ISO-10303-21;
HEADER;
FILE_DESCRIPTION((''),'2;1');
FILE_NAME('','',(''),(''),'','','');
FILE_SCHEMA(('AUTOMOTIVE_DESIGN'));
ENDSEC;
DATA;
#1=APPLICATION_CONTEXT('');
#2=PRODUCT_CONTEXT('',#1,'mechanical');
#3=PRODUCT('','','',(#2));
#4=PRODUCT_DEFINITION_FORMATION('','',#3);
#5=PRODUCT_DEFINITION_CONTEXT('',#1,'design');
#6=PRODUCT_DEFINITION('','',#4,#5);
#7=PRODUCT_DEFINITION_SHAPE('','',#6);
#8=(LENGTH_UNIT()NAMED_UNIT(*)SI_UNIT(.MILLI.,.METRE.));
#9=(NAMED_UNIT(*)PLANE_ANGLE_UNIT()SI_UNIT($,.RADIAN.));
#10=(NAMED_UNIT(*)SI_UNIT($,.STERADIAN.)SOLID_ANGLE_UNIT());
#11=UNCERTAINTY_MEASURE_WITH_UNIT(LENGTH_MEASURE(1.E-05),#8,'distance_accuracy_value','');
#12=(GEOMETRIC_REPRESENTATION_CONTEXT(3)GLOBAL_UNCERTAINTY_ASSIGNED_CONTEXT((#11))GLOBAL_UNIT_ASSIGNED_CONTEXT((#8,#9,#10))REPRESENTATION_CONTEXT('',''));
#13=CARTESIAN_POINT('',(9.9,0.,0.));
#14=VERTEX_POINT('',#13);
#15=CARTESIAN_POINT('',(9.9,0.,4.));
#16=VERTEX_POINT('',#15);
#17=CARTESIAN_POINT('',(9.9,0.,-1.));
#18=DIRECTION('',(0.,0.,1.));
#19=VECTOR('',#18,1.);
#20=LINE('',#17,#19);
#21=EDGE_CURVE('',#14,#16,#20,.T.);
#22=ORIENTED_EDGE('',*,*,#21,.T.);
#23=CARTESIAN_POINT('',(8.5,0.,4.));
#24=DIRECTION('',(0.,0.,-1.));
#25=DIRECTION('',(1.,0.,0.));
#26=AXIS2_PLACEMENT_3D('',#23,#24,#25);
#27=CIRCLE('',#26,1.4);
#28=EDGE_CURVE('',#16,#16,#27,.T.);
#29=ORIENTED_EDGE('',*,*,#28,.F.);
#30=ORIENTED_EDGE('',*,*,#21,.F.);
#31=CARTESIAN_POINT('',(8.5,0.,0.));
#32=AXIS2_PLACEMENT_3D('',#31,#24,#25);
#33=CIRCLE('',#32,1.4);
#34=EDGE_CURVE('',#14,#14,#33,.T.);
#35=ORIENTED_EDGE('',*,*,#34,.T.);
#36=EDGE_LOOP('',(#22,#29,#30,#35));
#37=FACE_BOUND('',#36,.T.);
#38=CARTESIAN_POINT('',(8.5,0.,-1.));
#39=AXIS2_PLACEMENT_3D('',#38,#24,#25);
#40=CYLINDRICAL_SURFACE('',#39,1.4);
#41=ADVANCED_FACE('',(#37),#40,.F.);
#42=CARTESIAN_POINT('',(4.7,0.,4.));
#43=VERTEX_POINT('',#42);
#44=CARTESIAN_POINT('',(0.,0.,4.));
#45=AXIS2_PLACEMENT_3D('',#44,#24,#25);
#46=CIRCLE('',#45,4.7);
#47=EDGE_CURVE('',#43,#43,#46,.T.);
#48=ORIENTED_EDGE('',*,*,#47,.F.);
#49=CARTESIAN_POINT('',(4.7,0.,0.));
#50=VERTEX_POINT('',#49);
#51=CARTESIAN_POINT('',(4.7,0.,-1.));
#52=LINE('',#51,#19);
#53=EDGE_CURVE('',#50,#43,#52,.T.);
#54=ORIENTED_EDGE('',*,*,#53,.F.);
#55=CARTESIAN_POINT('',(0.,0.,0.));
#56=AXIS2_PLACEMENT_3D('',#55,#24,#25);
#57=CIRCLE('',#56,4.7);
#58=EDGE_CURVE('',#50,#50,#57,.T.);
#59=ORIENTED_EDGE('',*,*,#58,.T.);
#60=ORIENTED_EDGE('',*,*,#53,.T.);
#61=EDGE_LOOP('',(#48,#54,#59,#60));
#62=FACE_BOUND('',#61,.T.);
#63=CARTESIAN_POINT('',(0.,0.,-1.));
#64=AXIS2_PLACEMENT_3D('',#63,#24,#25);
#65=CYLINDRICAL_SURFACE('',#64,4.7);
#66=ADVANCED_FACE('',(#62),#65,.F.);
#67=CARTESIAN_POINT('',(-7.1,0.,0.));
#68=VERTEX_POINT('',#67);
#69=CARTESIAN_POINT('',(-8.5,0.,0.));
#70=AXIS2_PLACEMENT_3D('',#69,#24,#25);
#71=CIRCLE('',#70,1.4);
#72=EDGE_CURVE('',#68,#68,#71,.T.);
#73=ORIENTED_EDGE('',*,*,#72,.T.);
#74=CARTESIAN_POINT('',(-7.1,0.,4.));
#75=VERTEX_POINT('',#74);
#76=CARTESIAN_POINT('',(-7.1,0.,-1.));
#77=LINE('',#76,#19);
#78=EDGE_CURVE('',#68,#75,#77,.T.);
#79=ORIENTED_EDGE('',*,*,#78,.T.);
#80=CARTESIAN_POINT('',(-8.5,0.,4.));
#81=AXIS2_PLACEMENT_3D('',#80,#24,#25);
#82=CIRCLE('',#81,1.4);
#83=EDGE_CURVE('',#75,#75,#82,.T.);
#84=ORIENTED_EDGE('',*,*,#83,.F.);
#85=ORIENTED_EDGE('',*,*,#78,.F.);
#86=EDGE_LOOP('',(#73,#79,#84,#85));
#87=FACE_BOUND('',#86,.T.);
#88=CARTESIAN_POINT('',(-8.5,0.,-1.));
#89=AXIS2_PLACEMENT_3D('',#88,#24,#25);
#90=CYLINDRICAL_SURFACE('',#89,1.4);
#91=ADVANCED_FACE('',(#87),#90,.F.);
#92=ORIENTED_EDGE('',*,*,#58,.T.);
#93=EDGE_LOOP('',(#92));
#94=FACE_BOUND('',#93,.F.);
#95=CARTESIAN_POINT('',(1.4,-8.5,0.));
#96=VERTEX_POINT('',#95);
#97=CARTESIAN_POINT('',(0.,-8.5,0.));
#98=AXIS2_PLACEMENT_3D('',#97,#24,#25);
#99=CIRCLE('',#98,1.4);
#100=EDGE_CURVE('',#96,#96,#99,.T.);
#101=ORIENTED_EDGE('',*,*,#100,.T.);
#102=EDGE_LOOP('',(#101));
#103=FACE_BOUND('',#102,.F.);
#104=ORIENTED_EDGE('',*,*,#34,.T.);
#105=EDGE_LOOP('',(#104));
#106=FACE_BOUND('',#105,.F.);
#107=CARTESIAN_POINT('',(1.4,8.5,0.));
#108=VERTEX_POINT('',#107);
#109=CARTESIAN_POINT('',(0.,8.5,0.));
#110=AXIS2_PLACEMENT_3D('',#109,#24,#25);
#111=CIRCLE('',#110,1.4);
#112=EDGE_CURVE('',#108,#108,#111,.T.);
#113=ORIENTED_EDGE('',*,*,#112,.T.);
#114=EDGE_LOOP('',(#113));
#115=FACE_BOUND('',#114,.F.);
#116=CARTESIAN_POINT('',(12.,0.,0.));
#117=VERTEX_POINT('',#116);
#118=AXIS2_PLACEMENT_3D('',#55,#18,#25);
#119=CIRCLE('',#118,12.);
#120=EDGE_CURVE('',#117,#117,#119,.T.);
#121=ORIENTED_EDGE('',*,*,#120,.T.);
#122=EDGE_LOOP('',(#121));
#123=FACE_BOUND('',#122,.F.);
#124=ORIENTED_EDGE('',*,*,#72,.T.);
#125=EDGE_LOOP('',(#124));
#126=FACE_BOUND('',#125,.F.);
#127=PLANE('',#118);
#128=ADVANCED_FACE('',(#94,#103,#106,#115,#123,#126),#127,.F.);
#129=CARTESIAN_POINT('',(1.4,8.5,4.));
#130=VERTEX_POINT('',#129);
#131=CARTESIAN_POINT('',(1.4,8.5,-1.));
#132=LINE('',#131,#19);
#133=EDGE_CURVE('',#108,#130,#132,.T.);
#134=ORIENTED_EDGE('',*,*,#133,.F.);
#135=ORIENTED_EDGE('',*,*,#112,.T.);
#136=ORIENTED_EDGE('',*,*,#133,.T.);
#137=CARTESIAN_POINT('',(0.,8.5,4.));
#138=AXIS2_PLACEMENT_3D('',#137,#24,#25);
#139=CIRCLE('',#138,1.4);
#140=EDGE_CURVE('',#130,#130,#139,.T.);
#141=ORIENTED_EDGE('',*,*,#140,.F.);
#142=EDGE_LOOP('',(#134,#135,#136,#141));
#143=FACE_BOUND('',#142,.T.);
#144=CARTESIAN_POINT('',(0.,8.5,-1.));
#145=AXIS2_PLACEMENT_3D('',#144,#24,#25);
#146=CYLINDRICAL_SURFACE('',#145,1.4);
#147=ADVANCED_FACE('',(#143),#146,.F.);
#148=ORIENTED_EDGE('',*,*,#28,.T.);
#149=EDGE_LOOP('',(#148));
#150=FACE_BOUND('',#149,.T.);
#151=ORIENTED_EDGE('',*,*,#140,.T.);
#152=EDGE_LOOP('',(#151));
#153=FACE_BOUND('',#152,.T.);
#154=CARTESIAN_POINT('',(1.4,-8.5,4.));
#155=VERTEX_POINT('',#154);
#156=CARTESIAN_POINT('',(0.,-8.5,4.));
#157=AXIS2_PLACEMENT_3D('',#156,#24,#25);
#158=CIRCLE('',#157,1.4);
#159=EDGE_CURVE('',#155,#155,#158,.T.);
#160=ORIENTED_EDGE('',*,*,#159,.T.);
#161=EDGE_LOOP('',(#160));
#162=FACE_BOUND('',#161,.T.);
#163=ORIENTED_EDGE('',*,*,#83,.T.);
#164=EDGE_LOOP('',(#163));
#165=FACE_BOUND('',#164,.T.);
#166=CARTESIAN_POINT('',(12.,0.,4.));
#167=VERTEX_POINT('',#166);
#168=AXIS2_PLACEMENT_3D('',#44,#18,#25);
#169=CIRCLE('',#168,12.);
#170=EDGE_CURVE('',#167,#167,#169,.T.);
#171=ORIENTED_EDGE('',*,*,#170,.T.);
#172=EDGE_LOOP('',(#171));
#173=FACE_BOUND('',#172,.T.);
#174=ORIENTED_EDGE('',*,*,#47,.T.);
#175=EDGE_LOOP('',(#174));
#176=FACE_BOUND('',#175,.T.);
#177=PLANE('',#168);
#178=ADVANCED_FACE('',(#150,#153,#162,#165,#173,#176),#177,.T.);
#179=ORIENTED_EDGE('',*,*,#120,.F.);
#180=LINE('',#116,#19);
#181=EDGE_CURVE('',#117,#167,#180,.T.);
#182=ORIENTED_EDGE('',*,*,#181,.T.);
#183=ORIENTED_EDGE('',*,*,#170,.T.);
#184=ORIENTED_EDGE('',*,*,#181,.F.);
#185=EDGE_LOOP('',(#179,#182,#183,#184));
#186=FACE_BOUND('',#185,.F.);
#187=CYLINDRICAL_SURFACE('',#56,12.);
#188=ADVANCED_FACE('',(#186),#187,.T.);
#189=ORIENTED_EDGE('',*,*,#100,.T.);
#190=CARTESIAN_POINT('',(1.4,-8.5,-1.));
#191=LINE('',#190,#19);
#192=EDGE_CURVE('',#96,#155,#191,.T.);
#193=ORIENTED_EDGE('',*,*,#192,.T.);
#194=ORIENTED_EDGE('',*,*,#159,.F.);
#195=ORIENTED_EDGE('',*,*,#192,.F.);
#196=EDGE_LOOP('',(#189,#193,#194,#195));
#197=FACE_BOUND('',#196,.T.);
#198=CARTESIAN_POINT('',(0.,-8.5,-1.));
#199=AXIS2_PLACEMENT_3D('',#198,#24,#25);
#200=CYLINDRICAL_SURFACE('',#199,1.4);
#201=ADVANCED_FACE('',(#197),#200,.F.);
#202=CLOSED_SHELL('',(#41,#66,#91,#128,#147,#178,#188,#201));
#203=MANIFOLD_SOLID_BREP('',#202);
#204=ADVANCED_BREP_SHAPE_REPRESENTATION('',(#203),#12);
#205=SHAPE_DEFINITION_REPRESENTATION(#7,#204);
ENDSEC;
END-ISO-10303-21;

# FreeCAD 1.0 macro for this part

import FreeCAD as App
import Part
import Sketcher
from FreeCAD import Vector

doc = App.newDocument("Part")
body = doc.addObject("PartDesign::Body", "Body")

sketch1 = body.newObject("Sketcher::SketchObject", "Sketch")
sketch1.AttachmentSupport = (doc.getObject("XY_Plane"), [""])
sketch1.MapMode = "FlatFace"
sketch1.AttachmentOffset = App.Placement(Vector(0, 0, -1), App.Rotation())
sketch1.addGeometry(Part.Circle(Vector(0, 0, 0), Vector(0, 0, 1), 4.7), False)
sketch1.addConstraint(Sketcher.Constraint("Coincident", 0, 3, -1, 1))
sketch1.addConstraint(Sketcher.Constraint("Diameter", 0, 9.4))
pad1 = body.newObject("PartDesign::Pad", "Pad")
pad1.Profile = sketch1
pad1.Length = 6
body2 = doc.addObject("PartDesign::Body", "Body001")

sketch2 = body2.newObject("Sketcher::SketchObject", "Sketch001")
sketch2.AttachmentSupport = (doc.getObject("XY_Plane001"), [""])
sketch2.MapMode = "FlatFace"
sketch2.AttachmentOffset = App.Placement(Vector(0, 0, -1), App.Rotation())
sketch2.addGeometry(Part.Circle(Vector(8.5, 0, 0), Vector(0, 0, 1), 1.4), False)
sketch2.addConstraint(Sketcher.Constraint("PointOnObject", 0, 3, -1))
sketch2.addConstraint(Sketcher.Constraint("Diameter", 0, 2.8))
sketch2.addConstraint(Sketcher.Constraint("DistanceX", -1, 1, 0, 3, 8.5))
pad2 = body2.newObject("PartDesign::Pad", "Pad001")
pad2.Profile = sketch2
pad2.Length = 10
body3 = doc.addObject("PartDesign::Body", "Body002")

sketch3 = body3.newObject("Sketcher::SketchObject", "Sketch002")
sketch3.AttachmentSupport = (doc.getObject("XY_Plane002"), [""])
sketch3.MapMode = "FlatFace"
sketch3.AttachmentOffset = App.Placement(Vector(0, 0, -1), App.Rotation())
sketch3.addGeometry(Part.Circle(Vector(0, 8.5, 0), Vector(0, 0, 1), 1.4), False)
sketch3.addConstraint(Sketcher.Constraint("PointOnObject", 0, 3, -2))
sketch3.addConstraint(Sketcher.Constraint("Diameter", 0, 2.8))
sketch3.addConstraint(Sketcher.Constraint("DistanceY", -1, 1, 0, 3, 8.5))
pad3 = body3.newObject("PartDesign::Pad", "Pad002")
pad3.Profile = sketch3
pad3.Length = 10
body4 = doc.addObject("PartDesign::Body", "Body003")

sketch4 = body4.newObject("Sketcher::SketchObject", "Sketch003")
sketch4.AttachmentSupport = (doc.getObject("XY_Plane003"), [""])
sketch4.MapMode = "FlatFace"
sketch4.AttachmentOffset = App.Placement(Vector(0, 0, -1), App.Rotation())
sketch4.addGeometry(Part.Circle(Vector(0, -8.5, 0), Vector(0, 0, 1), 1.4), False)
sketch4.addConstraint(Sketcher.Constraint("PointOnObject", 0, 3, -2))
sketch4.addConstraint(Sketcher.Constraint("Diameter", 0, 2.8))
sketch4.addConstraint(Sketcher.Constraint("DistanceY", 0, 3, -1, 1, 8.5))
pad4 = body4.newObject("PartDesign::Pad", "Pad003")
pad4.Profile = sketch4
pad4.Length = 10
body5 = doc.addObject("PartDesign::Body", "Body004")

sketch5 = body5.newObject("Sketcher::SketchObject", "Sketch004")
sketch5.AttachmentSupport = (doc.getObject("XY_Plane004"), [""])
sketch5.MapMode = "FlatFace"
sketch5.AttachmentOffset = App.Placement(Vector(0, 0, -1), App.Rotation())
sketch5.addGeometry(Part.Circle(Vector(-8.5, 0, 0), Vector(0, 0, 1), 1.4), False)
sketch5.addConstraint(Sketcher.Constraint("PointOnObject", 0, 3, -1))
sketch5.addConstraint(Sketcher.Constraint("Diameter", 0, 2.8))
sketch5.addConstraint(Sketcher.Constraint("DistanceX", 0, 3, -1, 1, 8.5))
pad5 = body5.newObject("PartDesign::Pad", "Pad004")
pad5.Profile = sketch5
pad5.Length = 10
body6 = doc.addObject("PartDesign::Body", "Body005")

sketch6 = body6.newObject("Sketcher::SketchObject", "Sketch005")
sketch6.AttachmentSupport = (doc.getObject("XY_Plane005"), [""])
sketch6.MapMode = "FlatFace"
sketch6.addGeometry(Part.Circle(Vector(0, 0, 0), Vector(0, 0, 1), 12), False)
sketch6.addConstraint(Sketcher.Constraint("Coincident", 0, 3, -1, 1))
sketch6.addConstraint(Sketcher.Constraint("Diameter", 0, 24.0))
pad6 = body6.newObject("PartDesign::Pad", "Pad005")
pad6.Profile = sketch6
pad6.Length = 4
doc.recompute()

boolean = body6.newObject("PartDesign::Boolean", "Boolean")
boolean.Type = "Cut"
boolean.addObjects([body5])
doc.recompute()

boolean2 = body6.newObject("PartDesign::Boolean", "Boolean001")
boolean2.Type = "Cut"
boolean2.addObjects([body4])
doc.recompute()

boolean3 = body6.newObject("PartDesign::Boolean", "Boolean002")
boolean3.Type = "Cut"
boolean3.addObjects([body3])
doc.recompute()

boolean4 = body6.newObject("PartDesign::Boolean", "Boolean003")
boolean4.Type = "Cut"
boolean4.addObjects([body2])
doc.recompute()

boolean5 = body6.newObject("PartDesign::Boolean", "Boolean004")
boolean5.Type = "Cut"
boolean5.addObjects([body])

doc.recompute()
